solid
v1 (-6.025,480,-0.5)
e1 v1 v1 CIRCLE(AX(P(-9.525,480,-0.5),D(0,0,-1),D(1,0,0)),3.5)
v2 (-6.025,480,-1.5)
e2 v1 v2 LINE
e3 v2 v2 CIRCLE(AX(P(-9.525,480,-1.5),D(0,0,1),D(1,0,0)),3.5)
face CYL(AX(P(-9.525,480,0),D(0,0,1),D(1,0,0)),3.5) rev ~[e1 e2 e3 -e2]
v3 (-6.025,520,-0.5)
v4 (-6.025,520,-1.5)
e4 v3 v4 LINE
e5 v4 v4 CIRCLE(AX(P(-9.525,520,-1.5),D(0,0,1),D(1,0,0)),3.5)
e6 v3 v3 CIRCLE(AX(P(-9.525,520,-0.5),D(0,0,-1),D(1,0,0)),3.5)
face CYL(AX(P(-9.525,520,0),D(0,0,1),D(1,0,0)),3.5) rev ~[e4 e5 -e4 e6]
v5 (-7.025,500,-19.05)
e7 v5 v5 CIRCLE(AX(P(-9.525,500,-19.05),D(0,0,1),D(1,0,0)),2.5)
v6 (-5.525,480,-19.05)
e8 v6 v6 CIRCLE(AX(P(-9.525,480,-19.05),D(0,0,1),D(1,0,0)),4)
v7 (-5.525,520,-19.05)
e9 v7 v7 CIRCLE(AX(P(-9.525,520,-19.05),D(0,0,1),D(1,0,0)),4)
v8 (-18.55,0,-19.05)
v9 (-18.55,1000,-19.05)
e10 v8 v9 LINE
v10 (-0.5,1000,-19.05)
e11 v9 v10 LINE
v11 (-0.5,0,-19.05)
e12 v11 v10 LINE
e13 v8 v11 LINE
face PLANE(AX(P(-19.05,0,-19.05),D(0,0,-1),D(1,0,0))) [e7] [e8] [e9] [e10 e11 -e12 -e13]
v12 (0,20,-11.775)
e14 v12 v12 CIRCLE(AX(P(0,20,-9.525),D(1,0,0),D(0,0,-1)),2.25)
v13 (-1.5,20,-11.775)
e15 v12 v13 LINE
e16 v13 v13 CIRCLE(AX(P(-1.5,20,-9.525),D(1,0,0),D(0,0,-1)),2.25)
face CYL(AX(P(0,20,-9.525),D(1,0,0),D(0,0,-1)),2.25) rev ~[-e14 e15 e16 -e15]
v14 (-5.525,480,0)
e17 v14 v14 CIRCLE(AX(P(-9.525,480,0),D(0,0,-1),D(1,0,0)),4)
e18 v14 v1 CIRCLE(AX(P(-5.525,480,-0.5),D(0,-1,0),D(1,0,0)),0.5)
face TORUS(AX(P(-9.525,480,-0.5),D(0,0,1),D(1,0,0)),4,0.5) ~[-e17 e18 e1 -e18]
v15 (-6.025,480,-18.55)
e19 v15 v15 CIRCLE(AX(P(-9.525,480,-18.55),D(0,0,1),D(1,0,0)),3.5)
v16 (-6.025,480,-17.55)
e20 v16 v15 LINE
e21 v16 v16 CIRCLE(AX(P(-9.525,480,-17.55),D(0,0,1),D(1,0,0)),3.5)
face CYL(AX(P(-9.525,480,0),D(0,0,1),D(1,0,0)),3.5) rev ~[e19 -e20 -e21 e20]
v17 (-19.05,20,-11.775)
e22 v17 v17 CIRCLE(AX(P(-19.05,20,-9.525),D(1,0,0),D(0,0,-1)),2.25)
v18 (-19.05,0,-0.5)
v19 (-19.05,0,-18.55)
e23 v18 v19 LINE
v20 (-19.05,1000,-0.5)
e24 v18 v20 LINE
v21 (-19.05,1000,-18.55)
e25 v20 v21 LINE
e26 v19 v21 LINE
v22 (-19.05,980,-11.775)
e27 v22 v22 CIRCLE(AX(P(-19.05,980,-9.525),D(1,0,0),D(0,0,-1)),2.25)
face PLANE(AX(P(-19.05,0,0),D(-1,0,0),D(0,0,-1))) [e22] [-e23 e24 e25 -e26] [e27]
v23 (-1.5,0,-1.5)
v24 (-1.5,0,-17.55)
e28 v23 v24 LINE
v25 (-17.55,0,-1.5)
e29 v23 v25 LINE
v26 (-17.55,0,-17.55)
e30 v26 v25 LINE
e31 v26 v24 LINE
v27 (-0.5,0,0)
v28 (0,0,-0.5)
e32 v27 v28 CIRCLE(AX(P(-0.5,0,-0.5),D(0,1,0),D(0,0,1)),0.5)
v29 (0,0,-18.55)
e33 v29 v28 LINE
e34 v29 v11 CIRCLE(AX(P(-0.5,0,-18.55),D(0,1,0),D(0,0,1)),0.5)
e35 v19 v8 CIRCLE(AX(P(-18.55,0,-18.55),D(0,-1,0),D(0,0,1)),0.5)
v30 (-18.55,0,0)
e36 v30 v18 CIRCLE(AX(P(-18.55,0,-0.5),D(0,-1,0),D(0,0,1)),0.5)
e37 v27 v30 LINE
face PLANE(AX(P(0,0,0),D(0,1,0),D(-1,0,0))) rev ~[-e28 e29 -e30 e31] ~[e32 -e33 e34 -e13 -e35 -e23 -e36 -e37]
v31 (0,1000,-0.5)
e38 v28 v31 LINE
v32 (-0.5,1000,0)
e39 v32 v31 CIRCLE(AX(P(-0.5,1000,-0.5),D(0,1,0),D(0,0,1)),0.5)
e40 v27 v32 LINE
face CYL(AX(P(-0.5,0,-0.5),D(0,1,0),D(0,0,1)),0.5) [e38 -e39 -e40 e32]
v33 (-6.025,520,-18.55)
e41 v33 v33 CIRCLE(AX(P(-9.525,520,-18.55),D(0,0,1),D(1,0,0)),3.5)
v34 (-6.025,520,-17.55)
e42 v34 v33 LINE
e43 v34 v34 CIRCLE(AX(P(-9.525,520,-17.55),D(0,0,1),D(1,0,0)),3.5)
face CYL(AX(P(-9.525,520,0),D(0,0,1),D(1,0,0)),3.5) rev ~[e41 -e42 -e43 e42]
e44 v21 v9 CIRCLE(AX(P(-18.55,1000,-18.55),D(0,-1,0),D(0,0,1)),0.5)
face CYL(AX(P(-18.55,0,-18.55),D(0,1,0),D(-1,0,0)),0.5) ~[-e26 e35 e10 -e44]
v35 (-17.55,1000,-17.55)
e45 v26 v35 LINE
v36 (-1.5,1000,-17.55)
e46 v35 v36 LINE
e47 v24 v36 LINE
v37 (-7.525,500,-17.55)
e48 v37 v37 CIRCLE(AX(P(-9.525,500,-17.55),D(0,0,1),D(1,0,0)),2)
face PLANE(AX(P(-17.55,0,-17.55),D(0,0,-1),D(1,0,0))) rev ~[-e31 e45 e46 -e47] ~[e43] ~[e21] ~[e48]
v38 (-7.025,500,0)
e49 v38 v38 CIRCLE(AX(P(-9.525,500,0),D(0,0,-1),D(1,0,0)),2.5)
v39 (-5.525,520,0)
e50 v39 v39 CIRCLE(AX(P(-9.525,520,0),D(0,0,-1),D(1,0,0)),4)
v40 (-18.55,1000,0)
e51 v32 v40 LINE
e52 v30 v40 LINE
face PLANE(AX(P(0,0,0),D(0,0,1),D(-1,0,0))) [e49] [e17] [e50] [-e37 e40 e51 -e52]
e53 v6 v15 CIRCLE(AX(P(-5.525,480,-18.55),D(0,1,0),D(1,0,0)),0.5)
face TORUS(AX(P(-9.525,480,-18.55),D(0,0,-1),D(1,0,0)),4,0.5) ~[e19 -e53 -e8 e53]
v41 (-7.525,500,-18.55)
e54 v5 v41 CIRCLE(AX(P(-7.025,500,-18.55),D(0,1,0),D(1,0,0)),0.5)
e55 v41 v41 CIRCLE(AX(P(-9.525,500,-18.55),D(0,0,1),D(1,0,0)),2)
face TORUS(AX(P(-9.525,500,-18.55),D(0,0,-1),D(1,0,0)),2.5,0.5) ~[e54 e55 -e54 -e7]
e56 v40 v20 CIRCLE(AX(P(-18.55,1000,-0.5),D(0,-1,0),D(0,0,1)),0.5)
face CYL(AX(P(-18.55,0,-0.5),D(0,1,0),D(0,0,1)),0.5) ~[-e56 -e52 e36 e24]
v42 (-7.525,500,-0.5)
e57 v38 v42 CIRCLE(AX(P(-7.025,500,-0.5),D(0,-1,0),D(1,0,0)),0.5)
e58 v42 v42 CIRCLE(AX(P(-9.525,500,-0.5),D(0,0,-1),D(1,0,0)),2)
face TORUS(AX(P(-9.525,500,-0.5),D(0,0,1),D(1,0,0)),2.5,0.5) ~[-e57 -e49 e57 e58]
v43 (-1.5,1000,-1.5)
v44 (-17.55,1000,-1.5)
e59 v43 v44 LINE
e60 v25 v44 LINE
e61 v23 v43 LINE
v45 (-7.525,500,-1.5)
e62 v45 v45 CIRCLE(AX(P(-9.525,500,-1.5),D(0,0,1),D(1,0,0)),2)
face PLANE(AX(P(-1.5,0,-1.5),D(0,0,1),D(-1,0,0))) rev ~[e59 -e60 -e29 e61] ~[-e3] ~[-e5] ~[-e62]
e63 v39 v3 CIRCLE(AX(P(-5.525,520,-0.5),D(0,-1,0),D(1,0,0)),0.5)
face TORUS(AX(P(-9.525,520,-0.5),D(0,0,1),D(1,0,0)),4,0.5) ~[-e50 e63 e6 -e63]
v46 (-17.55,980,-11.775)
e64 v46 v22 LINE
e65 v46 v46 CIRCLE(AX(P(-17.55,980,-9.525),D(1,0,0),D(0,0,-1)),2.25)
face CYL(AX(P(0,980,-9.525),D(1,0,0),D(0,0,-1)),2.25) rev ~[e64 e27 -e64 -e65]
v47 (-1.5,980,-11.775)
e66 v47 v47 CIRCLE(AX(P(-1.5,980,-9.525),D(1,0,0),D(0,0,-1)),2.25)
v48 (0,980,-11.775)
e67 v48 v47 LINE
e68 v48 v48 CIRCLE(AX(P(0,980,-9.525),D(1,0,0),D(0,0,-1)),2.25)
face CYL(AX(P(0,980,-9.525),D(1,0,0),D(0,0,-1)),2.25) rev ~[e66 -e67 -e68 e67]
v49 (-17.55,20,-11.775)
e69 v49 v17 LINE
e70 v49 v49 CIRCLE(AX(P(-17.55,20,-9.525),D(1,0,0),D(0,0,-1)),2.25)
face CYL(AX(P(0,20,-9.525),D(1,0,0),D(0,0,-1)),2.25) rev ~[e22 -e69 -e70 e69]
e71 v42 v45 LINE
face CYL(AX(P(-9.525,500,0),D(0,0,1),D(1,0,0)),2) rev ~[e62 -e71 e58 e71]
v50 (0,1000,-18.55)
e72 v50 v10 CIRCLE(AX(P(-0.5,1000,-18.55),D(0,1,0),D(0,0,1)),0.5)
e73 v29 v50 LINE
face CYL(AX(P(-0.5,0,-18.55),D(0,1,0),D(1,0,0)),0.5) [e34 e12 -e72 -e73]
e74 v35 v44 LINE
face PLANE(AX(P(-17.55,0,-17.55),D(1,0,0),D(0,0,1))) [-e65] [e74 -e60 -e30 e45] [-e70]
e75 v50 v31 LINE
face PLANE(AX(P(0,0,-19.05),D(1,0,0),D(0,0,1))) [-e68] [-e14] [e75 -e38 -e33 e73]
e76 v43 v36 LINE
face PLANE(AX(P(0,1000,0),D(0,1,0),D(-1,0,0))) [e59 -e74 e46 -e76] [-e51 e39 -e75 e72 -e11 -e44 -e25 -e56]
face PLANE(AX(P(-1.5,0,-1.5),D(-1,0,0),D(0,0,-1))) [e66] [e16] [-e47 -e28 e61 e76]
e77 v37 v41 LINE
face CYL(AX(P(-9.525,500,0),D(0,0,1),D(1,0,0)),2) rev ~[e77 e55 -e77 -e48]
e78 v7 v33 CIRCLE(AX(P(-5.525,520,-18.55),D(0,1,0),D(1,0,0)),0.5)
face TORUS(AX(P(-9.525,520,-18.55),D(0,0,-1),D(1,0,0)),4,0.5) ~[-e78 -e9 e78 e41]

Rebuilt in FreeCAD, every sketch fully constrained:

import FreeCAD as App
import Part
import Sketcher
Q = App.Units.Quantity


def edges_at(feature, points):
    """Names of the edges that pass closest to the given points."""
    edges = feature.Shape.Edges
    near = lambda p: min(range(len(edges)), key=lambda i: edges[i].distToShape(Part.Vertex(*p))[0])
    return sorted({f"Edge{near(p) + 1}" for p in points})


def add_polygon(sketch, points):
    """Adds a closed chain of lines whose ends are joined by coincident constraints."""
    first, n = sketch.GeometryCount, len(points)
    for a, b in zip(points, points[1:] + points[:1]):
        sketch.addGeometry(Part.LineSegment(App.Vector(*a, 0), App.Vector(*b, 0)), False)
    for i in range(n):
        sketch.addConstraint(Sketcher.Constraint("Coincident", first + i, 2, first + (i + 1) % n, 1))

doc = App.newDocument("Part")
params = doc.addObject("Spreadsheet::Sheet", "Params")
for row, (alias, value) in enumerate([
    ("sketch1_width", "19.05 mm"),
    ("sketch1_width2", "16.05 mm"),
    ("pad1_length", "1000 mm"),
    ("sketch2_diameter", "7 mm"),
    ("pocket1_length", "20 mm"),
    ("sketch3_diameter", "4 mm"),
    ("pocket2_length", "20 mm"),
    ("fillet_radius", "0.5 mm"),
    ("sketch4_diameter", "4.5 mm"),
    ("pocket3_length", "20 mm"),
], start=1):
    params.set(f"A{row}", alias)
    params.set(f"B{row}", "=" + value)
    params.setAlias(f"B{row}", alias)

body = doc.addObject("PartDesign::Body", "Body")

# Sketch on XZ plane
sketch1 = body.newObject("Sketcher::SketchObject", "Sketch")
sketch1.AttachmentSupport = (doc.getObject("XZ_Plane"), [""])
sketch1.MapMode = "FlatFace"
add_polygon(sketch1, [(-19, 0), (0, 0), (0, -19), (-19, -19)])  # lines 0-3
add_polygon(sketch1, [(-18, -2), (-18, -18), (-2, -18), (-2, -2)])  # lines 4-7
sketch1.addConstraint([
    Sketcher.Constraint("Horizontal", 0),
    Sketcher.Constraint("Vertical", 1),
    Sketcher.Constraint("Horizontal", 2),
    Sketcher.Constraint("Vertical", 3),
    Sketcher.Constraint("Vertical", 4),
    Sketcher.Constraint("Horizontal", 5),
    Sketcher.Constraint("Vertical", 6),
    Sketcher.Constraint("Horizontal", 7),
    Sketcher.Constraint("Coincident", 0, 2, -1, 1),
    Sketcher.Constraint("Equal", 2, 1),
    Sketcher.Constraint("Equal", 7, 4),
    Sketcher.Constraint("DistanceX", 0, 1, 0, 2, Q("19.05 mm")),
    Sketcher.Constraint("DistanceX", 5, 1, 5, 2, Q("16.05 mm")),
    Sketcher.Constraint("DistanceX", 5, 2, -1, 1, Q("1.5 mm")),
    Sketcher.Constraint("DistanceY", 6, 2, -1, 1, Q("1.5 mm")),
])
sketch1.setExpression("Constraints[19]", "Params.sketch1_width")
sketch1.setExpression("Constraints[20]", "Params.sketch1_width2")
pad1 = body.newObject("PartDesign::Pad", "Pad")
pad1.Profile = sketch1
pad1.setExpression("Length", "Params.pad1_length")
pad1.Reversed = True

# Sketch on XY plane
sketch2 = body.newObject("Sketcher::SketchObject", "Sketch001")
sketch2.AttachmentSupport = (doc.getObject("XY_Plane"), [""])
sketch2.MapMode = "FlatFace"
sketch2.addGeometry([
    Part.Circle(App.Vector(-9.5, 480, 0), App.Vector(0, 0, 1), 3.5),
    Part.Circle(App.Vector(-9.5, 520, 0), App.Vector(0, 0, 1), 3.5),
], False)
sketch2.addConstraint([
    Sketcher.Constraint("Equal", 0, 1),
    Sketcher.Constraint("Vertical", 0, 3, 1, 3),
    Sketcher.Constraint("Diameter", 0, Q("7 mm")),
    Sketcher.Constraint("DistanceY", -1, 1, 0, 3, Q("480 mm")),
    Sketcher.Constraint("DistanceY", 0, 3, 1, 3, Q("40 mm")),
    Sketcher.Constraint("DistanceX", 0, 3, -1, 1, Q("9.525 mm")),
])
sketch2.setExpression("Constraints[2]", "Params.sketch2_diameter")
pocket1 = body.newObject("PartDesign::Pocket", "Pocket")
pocket1.Profile = sketch2
pocket1.setExpression("Length", "Params.pocket1_length")

# Sketch on XY plane
sketch3 = body.newObject("Sketcher::SketchObject", "Sketch002")
sketch3.AttachmentSupport = (doc.getObject("XY_Plane"), [""])
sketch3.MapMode = "FlatFace"
sketch3.addGeometry(Part.Circle(App.Vector(-9.5, 500, 0), App.Vector(0, 0, 1), 2), False)
sketch3.addConstraint([
    Sketcher.Constraint("Diameter", 0, Q("4 mm")),
    Sketcher.Constraint("DistanceY", -1, 1, 0, 3, Q("500 mm")),
    Sketcher.Constraint("DistanceX", 0, 3, -1, 1, Q("9.525 mm")),
])
sketch3.setExpression("Constraints[0]", "Params.sketch3_diameter")
pocket2 = body.newObject("PartDesign::Pocket", "Pocket001")
pocket2.Profile = sketch3
pocket2.setExpression("Length", "Params.pocket2_length")
doc.recompute()

fillet = body.newObject("PartDesign::Fillet", "Fillet")
fillet.Base = (pocket2, edges_at(pocket2, [
    (-13.025, 520, 0),
    (-13.025, 480, 0),
    (-11.525, 500, 0),
    (-13.025, 520, -19.05),
    (-11.525, 500, -19.05),
    (-13.025, 480, -19.05),
    (0, 500, -19.05),
    (-19.05, 500, -19.05),
    (-19.05, 500, 0),
    (0, 500, 0),
]))
fillet.setExpression("Radius", "Params.fillet_radius")

# Sketch on YZ plane
sketch4 = body.newObject("Sketcher::SketchObject", "Sketch003")
sketch4.AttachmentSupport = (doc.getObject("YZ_Plane"), [""])
sketch4.MapMode = "FlatFace"
sketch4.addGeometry([
    Part.Circle(App.Vector(20, -9.5, 0), App.Vector(0, 0, 1), 2.2),
    Part.Circle(App.Vector(980, -9.5, 0), App.Vector(0, 0, 1), 2.2),
], False)
sketch4.addConstraint([
    Sketcher.Constraint("Equal", 0, 1),
    Sketcher.Constraint("Horizontal", 0, 3, 1, 3),
    Sketcher.Constraint("Diameter", 0, Q("4.5 mm")),
    Sketcher.Constraint("DistanceX", -1, 1, 0, 3, Q("20 mm")),
    Sketcher.Constraint("DistanceX", -1, 1, 1, 3, Q("980 mm")),
    Sketcher.Constraint("DistanceY", 0, 3, -1, 1, Q("9.525 mm")),
])
sketch4.setExpression("Constraints[2]", "Params.sketch4_diameter")
pocket3 = body.newObject("PartDesign::Pocket", "Pocket002")
pocket3.Profile = sketch4
pocket3.setExpression("Length", "Params.pocket3_length")

doc.recompute()
